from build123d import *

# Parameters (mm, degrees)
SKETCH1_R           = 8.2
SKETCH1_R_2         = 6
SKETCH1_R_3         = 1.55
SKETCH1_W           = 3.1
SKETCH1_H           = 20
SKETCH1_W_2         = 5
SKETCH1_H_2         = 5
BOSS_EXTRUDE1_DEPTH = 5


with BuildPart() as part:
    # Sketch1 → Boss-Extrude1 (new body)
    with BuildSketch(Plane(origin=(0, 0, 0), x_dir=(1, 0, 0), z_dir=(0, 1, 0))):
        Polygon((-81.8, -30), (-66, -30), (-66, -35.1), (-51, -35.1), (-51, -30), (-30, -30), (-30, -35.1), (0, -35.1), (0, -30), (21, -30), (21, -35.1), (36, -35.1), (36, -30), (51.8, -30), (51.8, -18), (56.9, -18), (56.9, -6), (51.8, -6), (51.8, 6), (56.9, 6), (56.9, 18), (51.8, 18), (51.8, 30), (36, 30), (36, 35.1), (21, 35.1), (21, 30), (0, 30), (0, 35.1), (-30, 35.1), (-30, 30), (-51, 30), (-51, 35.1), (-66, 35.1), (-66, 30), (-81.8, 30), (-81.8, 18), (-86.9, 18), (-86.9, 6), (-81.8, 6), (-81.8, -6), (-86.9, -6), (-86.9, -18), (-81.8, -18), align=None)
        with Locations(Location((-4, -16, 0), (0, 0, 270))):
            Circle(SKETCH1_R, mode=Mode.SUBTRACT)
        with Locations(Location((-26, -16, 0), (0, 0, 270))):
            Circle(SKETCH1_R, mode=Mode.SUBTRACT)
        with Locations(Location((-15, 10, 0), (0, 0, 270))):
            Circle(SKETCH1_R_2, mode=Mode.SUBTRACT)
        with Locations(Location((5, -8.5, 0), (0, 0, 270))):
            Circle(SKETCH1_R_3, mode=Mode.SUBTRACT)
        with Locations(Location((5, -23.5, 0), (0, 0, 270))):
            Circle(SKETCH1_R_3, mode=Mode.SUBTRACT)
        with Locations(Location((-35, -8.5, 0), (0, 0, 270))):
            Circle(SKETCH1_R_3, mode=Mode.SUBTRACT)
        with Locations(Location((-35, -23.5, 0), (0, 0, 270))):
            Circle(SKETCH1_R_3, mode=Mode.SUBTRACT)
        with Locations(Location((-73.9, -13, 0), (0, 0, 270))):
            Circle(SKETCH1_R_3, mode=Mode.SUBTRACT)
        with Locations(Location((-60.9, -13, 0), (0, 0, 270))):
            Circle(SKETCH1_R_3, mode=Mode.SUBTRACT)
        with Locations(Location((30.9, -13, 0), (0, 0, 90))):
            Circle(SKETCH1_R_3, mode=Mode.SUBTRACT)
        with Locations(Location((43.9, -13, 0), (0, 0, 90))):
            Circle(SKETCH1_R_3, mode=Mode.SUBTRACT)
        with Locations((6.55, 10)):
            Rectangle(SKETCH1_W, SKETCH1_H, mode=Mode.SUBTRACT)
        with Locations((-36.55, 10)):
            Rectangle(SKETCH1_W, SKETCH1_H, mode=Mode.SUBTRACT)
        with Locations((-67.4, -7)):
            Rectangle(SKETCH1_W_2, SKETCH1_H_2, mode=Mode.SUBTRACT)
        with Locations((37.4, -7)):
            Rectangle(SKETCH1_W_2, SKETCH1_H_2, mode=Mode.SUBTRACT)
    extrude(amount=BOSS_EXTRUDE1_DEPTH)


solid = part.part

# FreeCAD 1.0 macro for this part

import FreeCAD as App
import Part
import Sketcher

doc = App.newDocument("Part")
body = doc.addObject("PartDesign::Body", "Body")

sketch1 = body.newObject("Sketcher::SketchObject", "Sketch")
sketch1.AttachmentSupport = (doc.getObject("XZ_Plane"), [""])
sketch1.MapMode = "FlatFace"
sketch1.addGeometry(Part.LineSegment(App.Vector(-81.8, 30, 0), App.Vector(-66, 30, 0)), False)
sketch1.addGeometry(Part.LineSegment(App.Vector(-66, 30, 0), App.Vector(-66, 35.1, 0)), False)
sketch1.addGeometry(Part.LineSegment(App.Vector(-66, 35.1, 0), App.Vector(-51, 35.1, 0)), False)
sketch1.addGeometry(Part.LineSegment(App.Vector(-51, 35.1, 0), App.Vector(-51, 30, 0)), False)
sketch1.addGeometry(Part.LineSegment(App.Vector(-51, 30, 0), App.Vector(-30, 30, 0)), False)
sketch1.addGeometry(Part.LineSegment(App.Vector(-30, 30, 0), App.Vector(-30, 35.1, 0)), False)
sketch1.addGeometry(Part.LineSegment(App.Vector(-30, 35.1, 0), App.Vector(0, 35.1, 0)), False)
sketch1.addGeometry(Part.LineSegment(App.Vector(0, 35.1, 0), App.Vector(0, 30, 0)), False)
sketch1.addGeometry(Part.LineSegment(App.Vector(0, 30, 0), App.Vector(21, 30, 0)), False)
sketch1.addGeometry(Part.LineSegment(App.Vector(21, 30, 0), App.Vector(21, 35.1, 0)), False)
sketch1.addGeometry(Part.LineSegment(App.Vector(21, 35.1, 0), App.Vector(36, 35.1, 0)), False)
sketch1.addGeometry(Part.LineSegment(App.Vector(36, 35.1, 0), App.Vector(36, 30, 0)), False)
sketch1.addGeometry(Part.LineSegment(App.Vector(36, 30, 0), App.Vector(51.8, 30, 0)), False)
sketch1.addGeometry(Part.LineSegment(App.Vector(51.8, 30, 0), App.Vector(51.8, 18, 0)), False)
sketch1.addGeometry(Part.LineSegment(App.Vector(51.8, 18, 0), App.Vector(56.9, 18, 0)), False)
sketch1.addGeometry(Part.LineSegment(App.Vector(56.9, 18, 0), App.Vector(56.9, 6, 0)), False)
sketch1.addGeometry(Part.LineSegment(App.Vector(56.9, 6, 0), App.Vector(51.8, 6, 0)), False)
sketch1.addGeometry(Part.LineSegment(App.Vector(51.8, 6, 0), App.Vector(51.8, -6, 0)), False)
sketch1.addGeometry(Part.LineSegment(App.Vector(51.8, -6, 0), App.Vector(56.9, -6, 0)), False)
sketch1.addGeometry(Part.LineSegment(App.Vector(56.9, -6, 0), App.Vector(56.9, -18, 0)), False)
sketch1.addGeometry(Part.LineSegment(App.Vector(56.9, -18, 0), App.Vector(51.8, -18, 0)), False)
sketch1.addGeometry(Part.LineSegment(App.Vector(51.8, -18, 0), App.Vector(51.8, -30, 0)), False)
sketch1.addGeometry(Part.LineSegment(App.Vector(51.8, -30, 0), App.Vector(36, -30, 0)), False)
sketch1.addGeometry(Part.LineSegment(App.Vector(36, -30, 0), App.Vector(36, -35.1, 0)), False)
sketch1.addGeometry(Part.LineSegment(App.Vector(36, -35.1, 0), App.Vector(21, -35.1, 0)), False)
sketch1.addGeometry(Part.LineSegment(App.Vector(21, -35.1, 0), App.Vector(21, -30, 0)), False)
sketch1.addGeometry(Part.LineSegment(App.Vector(21, -30, 0), App.Vector(0, -30, 0)), False)
sketch1.addGeometry(Part.LineSegment(App.Vector(0, -30, 0), App.Vector(0, -35.1, 0)), False)
sketch1.addGeometry(Part.LineSegment(App.Vector(0, -35.1, 0), App.Vector(-30, -35.1, 0)), False)
sketch1.addGeometry(Part.LineSegment(App.Vector(-30, -35.1, 0), App.Vector(-30, -30, 0)), False)
sketch1.addGeometry(Part.LineSegment(App.Vector(-30, -30, 0), App.Vector(-51, -30, 0)), False)
sketch1.addGeometry(Part.LineSegment(App.Vector(-51, -30, 0), App.Vector(-51, -35.1, 0)), False)
sketch1.addGeometry(Part.LineSegment(App.Vector(-51, -35.1, 0), App.Vector(-66, -35.1, 0)), False)
sketch1.addGeometry(Part.LineSegment(App.Vector(-66, -35.1, 0), App.Vector(-66, -30, 0)), False)
sketch1.addGeometry(Part.LineSegment(App.Vector(-66, -30, 0), App.Vector(-81.8, -30, 0)), False)
sketch1.addGeometry(Part.LineSegment(App.Vector(-81.8, -30, 0), App.Vector(-81.8, -18, 0)), False)
sketch1.addGeometry(Part.LineSegment(App.Vector(-81.8, -18, 0), App.Vector(-86.9, -18, 0)), False)
sketch1.addGeometry(Part.LineSegment(App.Vector(-86.9, -18, 0), App.Vector(-86.9, -6, 0)), False)
sketch1.addGeometry(Part.LineSegment(App.Vector(-86.9, -6, 0), App.Vector(-81.8, -6, 0)), False)
sketch1.addGeometry(Part.LineSegment(App.Vector(-81.8, -6, 0), App.Vector(-81.8, 6, 0)), False)
sketch1.addGeometry(Part.LineSegment(App.Vector(-81.8, 6, 0), App.Vector(-86.9, 6, 0)), False)
sketch1.addGeometry(Part.LineSegment(App.Vector(-86.9, 6, 0), App.Vector(-86.9, 18, 0)), False)
sketch1.addGeometry(Part.LineSegment(App.Vector(-86.9, 18, 0), App.Vector(-81.8, 18, 0)), False)
sketch1.addGeometry(Part.LineSegment(App.Vector(-81.8, 18, 0), App.Vector(-81.8, 30, 0)), False)
sketch1.addGeometry(Part.Circle(App.Vector(-35, 23.5, 0), App.Vector(0, 0, 1), 1.6), False)
sketch1.addGeometry(Part.Circle(App.Vector(-26, 16, 0), App.Vector(0, 0, 1), 8.2), False)
sketch1.addGeometry(Part.Circle(App.Vector(-73.9, 13, 0), App.Vector(0, 0, 1), 1.6), False)
sketch1.addGeometry(Part.Circle(App.Vector(-60.9, 13, 0), App.Vector(0, 0, 1), 1.6), False)
sketch1.addGeometry(Part.LineSegment(App.Vector(-64.9, 9.5, 0), App.Vector(-69.9, 9.5, 0)), False)
sketch1.addGeometry(Part.LineSegment(App.Vector(-69.9, 9.5, 0), App.Vector(-69.9, 4.5, 0)), False)
sketch1.addGeometry(Part.LineSegment(App.Vector(-69.9, 4.5, 0), App.Vector(-64.9, 4.5, 0)), False)
sketch1.addGeometry(Part.LineSegment(App.Vector(-64.9, 4.5, 0), App.Vector(-64.9, 9.5, 0)), False)
sketch1.addGeometry(Part.Circle(App.Vector(-35, 8.5, 0), App.Vector(0, 0, 1), 1.6), False)
sketch1.addGeometry(Part.Circle(App.Vector(5, 23.5, 0), App.Vector(0, 0, 1), 1.6), False)
sketch1.addGeometry(Part.Circle(App.Vector(-4, 16, 0), App.Vector(0, 0, 1), 8.2), False)
sketch1.addGeometry(Part.Circle(App.Vector(5, 8.5, 0), App.Vector(0, 0, 1), 1.6), False)
sketch1.addGeometry(Part.Circle(App.Vector(30.9, 13, 0), App.Vector(0, 0, 1), 1.6), False)
sketch1.addGeometry(Part.Circle(App.Vector(43.9, 13, 0), App.Vector(0, 0, 1), 1.6), False)
sketch1.addGeometry(Part.LineSegment(App.Vector(39.9, 9.5, 0), App.Vector(34.9, 9.5, 0)), False)
sketch1.addGeometry(Part.LineSegment(App.Vector(34.9, 9.5, 0), App.Vector(34.9, 4.5, 0)), False)
sketch1.addGeometry(Part.LineSegment(App.Vector(34.9, 4.5, 0), App.Vector(39.9, 4.5, 0)), False)
sketch1.addGeometry(Part.LineSegment(App.Vector(39.9, 4.5, 0), App.Vector(39.9, 9.5, 0)), False)
sketch1.addGeometry(Part.LineSegment(App.Vector(-35, 0, 0), App.Vector(-38.1, 0, 0)), False)
sketch1.addGeometry(Part.LineSegment(App.Vector(-38.1, 0, 0), App.Vector(-38.1, -20, 0)), False)
sketch1.addGeometry(Part.LineSegment(App.Vector(-38.1, -20, 0), App.Vector(-35, -20, 0)), False)
sketch1.addGeometry(Part.LineSegment(App.Vector(-35, -20, 0), App.Vector(-35, 0, 0)), False)
sketch1.addGeometry(Part.Circle(App.Vector(-15, -10, 0), App.Vector(0, 0, 1), 6), False)
sketch1.addGeometry(Part.LineSegment(App.Vector(8.1, 0, 0), App.Vector(5, 0, 0)), False)
sketch1.addGeometry(Part.LineSegment(App.Vector(5, 0, 0), App.Vector(5, -20, 0)), False)
sketch1.addGeometry(Part.LineSegment(App.Vector(5, -20, 0), App.Vector(8.1, -20, 0)), False)
sketch1.addGeometry(Part.LineSegment(App.Vector(8.1, -20, 0), App.Vector(8.1, 0, 0)), False)
sketch1.addConstraint(Sketcher.Constraint("Coincident", 0, 2, 1, 1))
sketch1.addConstraint(Sketcher.Constraint("Coincident", 1, 2, 2, 1))
sketch1.addConstraint(Sketcher.Constraint("Coincident", 2, 2, 3, 1))
sketch1.addConstraint(Sketcher.Constraint("Coincident", 3, 2, 4, 1))
sketch1.addConstraint(Sketcher.Constraint("Coincident", 4, 2, 5, 1))
sketch1.addConstraint(Sketcher.Constraint("Coincident", 5, 2, 6, 1))
sketch1.addConstraint(Sketcher.Constraint("Coincident", 6, 2, 7, 1))
sketch1.addConstraint(Sketcher.Constraint("Coincident", 7, 2, 8, 1))
sketch1.addConstraint(Sketcher.Constraint("Coincident", 8, 2, 9, 1))
sketch1.addConstraint(Sketcher.Constraint("Coincident", 9, 2, 10, 1))
sketch1.addConstraint(Sketcher.Constraint("Coincident", 10, 2, 11, 1))
sketch1.addConstraint(Sketcher.Constraint("Coincident", 11, 2, 12, 1))
sketch1.addConstraint(Sketcher.Constraint("Coincident", 12, 2, 13, 1))
sketch1.addConstraint(Sketcher.Constraint("Coincident", 13, 2, 14, 1))
sketch1.addConstraint(Sketcher.Constraint("Coincident", 14, 2, 15, 1))
sketch1.addConstraint(Sketcher.Constraint("Coincident", 15, 2, 16, 1))
sketch1.addConstraint(Sketcher.Constraint("Coincident", 16, 2, 17, 1))
sketch1.addConstraint(Sketcher.Constraint("Coincident", 17, 2, 18, 1))
sketch1.addConstraint(Sketcher.Constraint("Coincident", 18, 2, 19, 1))
sketch1.addConstraint(Sketcher.Constraint("Coincident", 19, 2, 20, 1))
sketch1.addConstraint(Sketcher.Constraint("Coincident", 20, 2, 21, 1))
sketch1.addConstraint(Sketcher.Constraint("Coincident", 21, 2, 22, 1))
sketch1.addConstraint(Sketcher.Constraint("Coincident", 22, 2, 23, 1))
sketch1.addConstraint(Sketcher.Constraint("Coincident", 23, 2, 24, 1))
sketch1.addConstraint(Sketcher.Constraint("Coincident", 24, 2, 25, 1))
sketch1.addConstraint(Sketcher.Constraint("Coincident", 25, 2, 26, 1))
sketch1.addConstraint(Sketcher.Constraint("Coincident", 26, 2, 27, 1))
sketch1.addConstraint(Sketcher.Constraint("Coincident", 27, 2, 28, 1))
sketch1.addConstraint(Sketcher.Constraint("Coincident", 28, 2, 29, 1))
sketch1.addConstraint(Sketcher.Constraint("Coincident", 29, 2, 30, 1))
sketch1.addConstraint(Sketcher.Constraint("Coincident", 30, 2, 31, 1))
sketch1.addConstraint(Sketcher.Constraint("Coincident", 31, 2, 32, 1))
sketch1.addConstraint(Sketcher.Constraint("Coincident", 32, 2, 33, 1))
sketch1.addConstraint(Sketcher.Constraint("Coincident", 33, 2, 34, 1))
sketch1.addConstraint(Sketcher.Constraint("Coincident", 34, 2, 35, 1))
sketch1.addConstraint(Sketcher.Constraint("Coincident", 35, 2, 36, 1))
sketch1.addConstraint(Sketcher.Constraint("Coincident", 36, 2, 37, 1))
sketch1.addConstraint(Sketcher.Constraint("Coincident", 37, 2, 38, 1))
sketch1.addConstraint(Sketcher.Constraint("Coincident", 38, 2, 39, 1))
sketch1.addConstraint(Sketcher.Constraint("Coincident", 39, 2, 40, 1))
sketch1.addConstraint(Sketcher.Constraint("Coincident", 40, 2, 41, 1))
sketch1.addConstraint(Sketcher.Constraint("Coincident", 41, 2, 42, 1))
sketch1.addConstraint(Sketcher.Constraint("Coincident", 42, 2, 43, 1))
sketch1.addConstraint(Sketcher.Constraint("Coincident", 43, 2, 0, 1))
sketch1.addConstraint(Sketcher.Constraint("Coincident", 48, 2, 49, 1))
sketch1.addConstraint(Sketcher.Constraint("Coincident", 49, 2, 50, 1))
sketch1.addConstraint(Sketcher.Constraint("Coincident", 50, 2, 51, 1))
sketch1.addConstraint(Sketcher.Constraint("Coincident", 51, 2, 48, 1))
sketch1.addConstraint(Sketcher.Constraint("Coincident", 58, 2, 59, 1))
sketch1.addConstraint(Sketcher.Constraint("Coincident", 59, 2, 60, 1))
sketch1.addConstraint(Sketcher.Constraint("Coincident", 60, 2, 61, 1))
sketch1.addConstraint(Sketcher.Constraint("Coincident", 61, 2, 58, 1))
sketch1.addConstraint(Sketcher.Constraint("Coincident", 62, 2, 63, 1))
sketch1.addConstraint(Sketcher.Constraint("Coincident", 63, 2, 64, 1))
sketch1.addConstraint(Sketcher.Constraint("Coincident", 64, 2, 65, 1))
sketch1.addConstraint(Sketcher.Constraint("Coincident", 65, 2, 62, 1))
sketch1.addConstraint(Sketcher.Constraint("Coincident", 67, 2, 68, 1))
sketch1.addConstraint(Sketcher.Constraint("Coincident", 68, 2, 69, 1))
sketch1.addConstraint(Sketcher.Constraint("Coincident", 69, 2, 70, 1))
sketch1.addConstraint(Sketcher.Constraint("Coincident", 70, 2, 67, 1))
sketch1.addConstraint(Sketcher.Constraint("Horizontal", 0))
sketch1.addConstraint(Sketcher.Constraint("Vertical", 1))
sketch1.addConstraint(Sketcher.Constraint("Horizontal", 2))
sketch1.addConstraint(Sketcher.Constraint("Vertical", 3))
sketch1.addConstraint(Sketcher.Constraint("Horizontal", 4))
sketch1.addConstraint(Sketcher.Constraint("Vertical", 5))
sketch1.addConstraint(Sketcher.Constraint("Horizontal", 6))
sketch1.addConstraint(Sketcher.Constraint("Vertical", 7))
sketch1.addConstraint(Sketcher.Constraint("Horizontal", 8))
sketch1.addConstraint(Sketcher.Constraint("Vertical", 9))
sketch1.addConstraint(Sketcher.Constraint("Horizontal", 10))
sketch1.addConstraint(Sketcher.Constraint("Vertical", 11))
sketch1.addConstraint(Sketcher.Constraint("Horizontal", 12))
sketch1.addConstraint(Sketcher.Constraint("Vertical", 13))
sketch1.addConstraint(Sketcher.Constraint("Horizontal", 14))
sketch1.addConstraint(Sketcher.Constraint("Vertical", 15))
sketch1.addConstraint(Sketcher.Constraint("Horizontal", 16))
sketch1.addConstraint(Sketcher.Constraint("Vertical", 17))
sketch1.addConstraint(Sketcher.Constraint("Horizontal", 18))
sketch1.addConstraint(Sketcher.Constraint("Vertical", 19))
sketch1.addConstraint(Sketcher.Constraint("Horizontal", 20))
sketch1.addConstraint(Sketcher.Constraint("Vertical", 21))
sketch1.addConstraint(Sketcher.Constraint("Horizontal", 22))
sketch1.addConstraint(Sketcher.Constraint("Vertical", 23))
sketch1.addConstraint(Sketcher.Constraint("Horizontal", 24))
sketch1.addConstraint(Sketcher.Constraint("Vertical", 25))
sketch1.addConstraint(Sketcher.Constraint("Horizontal", 26))
sketch1.addConstraint(Sketcher.Constraint("Vertical", 27))
sketch1.addConstraint(Sketcher.Constraint("Horizontal", 28))
sketch1.addConstraint(Sketcher.Constraint("Vertical", 29))
sketch1.addConstraint(Sketcher.Constraint("Horizontal", 30))
sketch1.addConstraint(Sketcher.Constraint("Vertical", 31))
sketch1.addConstraint(Sketcher.Constraint("Horizontal", 32))
sketch1.addConstraint(Sketcher.Constraint("Vertical", 33))
sketch1.addConstraint(Sketcher.Constraint("Horizontal", 34))
sketch1.addConstraint(Sketcher.Constraint("Vertical", 35))
sketch1.addConstraint(Sketcher.Constraint("Horizontal", 36))
sketch1.addConstraint(Sketcher.Constraint("Vertical", 37))
sketch1.addConstraint(Sketcher.Constraint("Horizontal", 38))
sketch1.addConstraint(Sketcher.Constraint("Vertical", 39))
sketch1.addConstraint(Sketcher.Constraint("Horizontal", 40))
sketch1.addConstraint(Sketcher.Constraint("Vertical", 41))
sketch1.addConstraint(Sketcher.Constraint("Horizontal", 42))
sketch1.addConstraint(Sketcher.Constraint("Vertical", 43))
sketch1.addConstraint(Sketcher.Constraint("Horizontal", 48))
sketch1.addConstraint(Sketcher.Constraint("Vertical", 49))
sketch1.addConstraint(Sketcher.Constraint("Horizontal", 50))
sketch1.addConstraint(Sketcher.Constraint("Vertical", 51))
sketch1.addConstraint(Sketcher.Constraint("Horizontal", 58))
sketch1.addConstraint(Sketcher.Constraint("Vertical", 59))
sketch1.addConstraint(Sketcher.Constraint("Horizontal", 60))
sketch1.addConstraint(Sketcher.Constraint("Vertical", 61))
sketch1.addConstraint(Sketcher.Constraint("Horizontal", 62))
sketch1.addConstraint(Sketcher.Constraint("Vertical", 63))
sketch1.addConstraint(Sketcher.Constraint("Horizontal", 64))
sketch1.addConstraint(Sketcher.Constraint("Vertical", 65))
sketch1.addConstraint(Sketcher.Constraint("Horizontal", 67))
sketch1.addConstraint(Sketcher.Constraint("Vertical", 68))
sketch1.addConstraint(Sketcher.Constraint("Horizontal", 69))
sketch1.addConstraint(Sketcher.Constraint("Vertical", 70))
sketch1.addConstraint(Sketcher.Constraint("Equal", 44, 46))
sketch1.addConstraint(Sketcher.Constraint("Equal", 46, 47))
sketch1.addConstraint(Sketcher.Constraint("Equal", 47, 52))
sketch1.addConstraint(Sketcher.Constraint("Equal", 52, 53))
sketch1.addConstraint(Sketcher.Constraint("Equal", 45, 54))
sketch1.addConstraint(Sketcher.Constraint("Equal", 53, 55))
sketch1.addConstraint(Sketcher.Constraint("Equal", 55, 56))
sketch1.addConstraint(Sketcher.Constraint("Equal", 56, 57))
sketch1.addConstraint(Sketcher.Constraint("Symmetric", 7, 2, 26, 2, -1, 1))
sketch1.addConstraint(Sketcher.Constraint("Symmetric", 15, 2, 18, 2, -1))
sketch1.addConstraint(Sketcher.Constraint("Symmetric", 13, 2, 20, 2, -1))
sketch1.addConstraint(Sketcher.Constraint("Symmetric", 11, 2, 22, 2, -1))
sketch1.addConstraint(Sketcher.Constraint("Symmetric", 9, 2, 24, 2, -1))
sketch1.addConstraint(Sketcher.Constraint("Symmetric", 6, 2, 27, 2, -1))
sketch1.addConstraint(Sketcher.Constraint("Symmetric", 4, 2, 29, 2, -1))
sketch1.addConstraint(Sketcher.Constraint("Symmetric", 2, 2, 31, 2, -1))
sketch1.addConstraint(Sketcher.Constraint("Symmetric", 0, 2, 33, 2, -1))
sketch1.addConstraint(Sketcher.Constraint("Symmetric", 37, 2, 40, 2, -1))
sketch1.addConstraint(Sketcher.Constraint("Symmetric", 35, 2, 42, 2, -1))
sketch1.addConstraint(Sketcher.Constraint("PointOnObject", 62, 2, -1))
sketch1.addConstraint(Sketcher.Constraint("PointOnObject", 67, 2, -1))
sketch1.addConstraint(Sketcher.Constraint("Horizontal", 46, 3, 47, 3))
sketch1.addConstraint(Sketcher.Constraint("Horizontal", 44, 3, 53, 3))
sketch1.addConstraint(Sketcher.Constraint("Horizontal", 45, 3, 54, 3))
sketch1.addConstraint(Sketcher.Constraint("Horizontal", 52, 3, 55, 3))
sketch1.addConstraint(Sketcher.Constraint("Horizontal", 47, 3, 56, 3))
sketch1.addConstraint(Sketcher.Constraint("Horizontal", 56, 3, 57, 3))
sketch1.addConstraint(Sketcher.Constraint("Horizontal", 0, 2, 3, 2))
sketch1.addConstraint(Sketcher.Constraint("Horizontal", 2, 2, 5, 2))
sketch1.addConstraint(Sketcher.Constraint("Horizontal", 4, 2, 7, 2))
sketch1.addConstraint(Sketcher.Constraint("Horizontal", 6, 2, 9, 2))
sketch1.addConstraint(Sketcher.Constraint("Horizontal", 8, 2, 11, 2))
sketch1.addConstraint(Sketcher.Constraint("Horizontal", 20, 2, 35, 2))
sketch1.addConstraint(Sketcher.Constraint("Horizontal", 18, 2, 37, 2))
sketch1.addConstraint(Sketcher.Constraint("Horizontal", 51, 2, 58, 2))
sketch1.addConstraint(Sketcher.Constraint("Horizontal", 50, 2, 59, 2))
sketch1.addConstraint(Sketcher.Constraint("Horizontal", 64, 2, 68, 2))
sketch1.addConstraint(Sketcher.Constraint("Vertical", 44, 3, 52, 3))
sketch1.addConstraint(Sketcher.Constraint("Vertical", 53, 3, 55, 3))
sketch1.addConstraint(Sketcher.Constraint("Vertical", 13, 2, 16, 2))
sketch1.addConstraint(Sketcher.Constraint("Vertical", 35, 2, 38, 2))
sketch1.addConstraint(Sketcher.Constraint("Vertical", 52, 3, 64, 2))
sketch1.addConstraint(Sketcher.Constraint("Vertical", 55, 3, 67, 2))
sketch1.addConstraint(Sketcher.Constraint("Equal", 4, 8))
sketch1.addConstraint(Sketcher.Constraint("Equal", 2, 10))
sketch1.addConstraint(Sketcher.Constraint("Equal", 0, 12))
sketch1.addConstraint(Sketcher.Constraint("Equal", 20, 36))
sketch1.addConstraint(Sketcher.Constraint("Equal", 50, 58))
sketch1.addConstraint(Sketcher.Constraint("Equal", 64, 67))
sketch1.addConstraint(Sketcher.Constraint("Equal", 42, 1))
sketch1.addConstraint(Sketcher.Constraint("Equal", 13, 15))
sketch1.addConstraint(Sketcher.Constraint("Equal", 15, 17))
sketch1.addConstraint(Sketcher.Constraint("Equal", 60, 49))
sketch1.addConstraint(Sketcher.Constraint("Diameter", 66, 12.0))
sketch1.addConstraint(Sketcher.Constraint("Diameter", 44, 3.1))
sketch1.addConstraint(Sketcher.Constraint("Diameter", 45, 16.4))
sketch1.addConstraint(Sketcher.Constraint("DistanceX", 2, 1, 2, 2, 15.0))
sketch1.addConstraint(Sketcher.Constraint("DistanceX", 4, 1, 4, 2, 21.0))
sketch1.addConstraint(Sketcher.Constraint("DistanceX", 6, 1, 6, 2, 30.0))
sketch1.addConstraint(Sketcher.Constraint("DistanceX", 48, 2, 48, 1, 5.0))
sketch1.addConstraint(Sketcher.Constraint("DistanceY", 13, 2, 13, 1, 12.0))
sketch1.addConstraint(Sketcher.Constraint("DistanceY", 63, 2, 63, 1, 20.0))
sketch1.addConstraint(Sketcher.Constraint("DistanceX", 0, 1, 0, 2, 15.8))
sketch1.addConstraint(Sketcher.Constraint("DistanceX", 14, 1, 14, 2, 5.1))
sketch1.addConstraint(Sketcher.Constraint("DistanceX", 62, 2, 62, 1, 3.1))
sketch1.addConstraint(Sketcher.Constraint("DistanceX", 44, 3, -1, 1, 35.0))
sketch1.addConstraint(Sketcher.Constraint("DistanceX", 45, 3, -1, 1, 26.0))
sketch1.addConstraint(Sketcher.Constraint("DistanceY", -1, 1, 45, 3, 16.0))
sketch1.addConstraint(Sketcher.Constraint("DistanceY", -1, 1, 46, 3, 13.0))
sketch1.addConstraint(Sketcher.Constraint("DistanceX", -1, 1, 53, 3, 5.0))
sketch1.addConstraint(Sketcher.Constraint("DistanceX", 54, 3, -1, 1, 4.0))
sketch1.addConstraint(Sketcher.Constraint("DistanceX", 66, 3, -1, 1, 15.0))
sketch1.addConstraint(Sketcher.Constraint("DistanceY", 66, 3, -1, 1, 10.0))
sketch1.addConstraint(Sketcher.Constraint("DistanceY", -1, 1, 44, 3, 23.5))
sketch1.addConstraint(Sketcher.Constraint("DistanceX", 46, 3, -1, 1, 73.9))
sketch1.addConstraint(Sketcher.Constraint("DistanceX", 47, 3, -1, 1, 60.9))
sketch1.addConstraint(Sketcher.Constraint("DistanceY", -1, 1, 52, 3, 8.5))
sketch1.addConstraint(Sketcher.Constraint("DistanceX", -1, 1, 56, 3, 30.9))
sketch1.addConstraint(Sketcher.Constraint("DistanceX", -1, 1, 57, 3, 43.9))
sketch1.addConstraint(Sketcher.Constraint("DistanceX", 48, 2, -1, 1, 69.9))
sketch1.addConstraint(Sketcher.Constraint("DistanceY", -1, 1, 48, 2, 9.5))
sketch1.addConstraint(Sketcher.Constraint("DistanceX", -1, 1, 58, 2, 34.9))
pad1 = body.newObject("PartDesign::Pad", "Pad")
pad1.Profile = sketch1
pad1.Length = 5
pad1.Reversed = True

doc.recompute()
